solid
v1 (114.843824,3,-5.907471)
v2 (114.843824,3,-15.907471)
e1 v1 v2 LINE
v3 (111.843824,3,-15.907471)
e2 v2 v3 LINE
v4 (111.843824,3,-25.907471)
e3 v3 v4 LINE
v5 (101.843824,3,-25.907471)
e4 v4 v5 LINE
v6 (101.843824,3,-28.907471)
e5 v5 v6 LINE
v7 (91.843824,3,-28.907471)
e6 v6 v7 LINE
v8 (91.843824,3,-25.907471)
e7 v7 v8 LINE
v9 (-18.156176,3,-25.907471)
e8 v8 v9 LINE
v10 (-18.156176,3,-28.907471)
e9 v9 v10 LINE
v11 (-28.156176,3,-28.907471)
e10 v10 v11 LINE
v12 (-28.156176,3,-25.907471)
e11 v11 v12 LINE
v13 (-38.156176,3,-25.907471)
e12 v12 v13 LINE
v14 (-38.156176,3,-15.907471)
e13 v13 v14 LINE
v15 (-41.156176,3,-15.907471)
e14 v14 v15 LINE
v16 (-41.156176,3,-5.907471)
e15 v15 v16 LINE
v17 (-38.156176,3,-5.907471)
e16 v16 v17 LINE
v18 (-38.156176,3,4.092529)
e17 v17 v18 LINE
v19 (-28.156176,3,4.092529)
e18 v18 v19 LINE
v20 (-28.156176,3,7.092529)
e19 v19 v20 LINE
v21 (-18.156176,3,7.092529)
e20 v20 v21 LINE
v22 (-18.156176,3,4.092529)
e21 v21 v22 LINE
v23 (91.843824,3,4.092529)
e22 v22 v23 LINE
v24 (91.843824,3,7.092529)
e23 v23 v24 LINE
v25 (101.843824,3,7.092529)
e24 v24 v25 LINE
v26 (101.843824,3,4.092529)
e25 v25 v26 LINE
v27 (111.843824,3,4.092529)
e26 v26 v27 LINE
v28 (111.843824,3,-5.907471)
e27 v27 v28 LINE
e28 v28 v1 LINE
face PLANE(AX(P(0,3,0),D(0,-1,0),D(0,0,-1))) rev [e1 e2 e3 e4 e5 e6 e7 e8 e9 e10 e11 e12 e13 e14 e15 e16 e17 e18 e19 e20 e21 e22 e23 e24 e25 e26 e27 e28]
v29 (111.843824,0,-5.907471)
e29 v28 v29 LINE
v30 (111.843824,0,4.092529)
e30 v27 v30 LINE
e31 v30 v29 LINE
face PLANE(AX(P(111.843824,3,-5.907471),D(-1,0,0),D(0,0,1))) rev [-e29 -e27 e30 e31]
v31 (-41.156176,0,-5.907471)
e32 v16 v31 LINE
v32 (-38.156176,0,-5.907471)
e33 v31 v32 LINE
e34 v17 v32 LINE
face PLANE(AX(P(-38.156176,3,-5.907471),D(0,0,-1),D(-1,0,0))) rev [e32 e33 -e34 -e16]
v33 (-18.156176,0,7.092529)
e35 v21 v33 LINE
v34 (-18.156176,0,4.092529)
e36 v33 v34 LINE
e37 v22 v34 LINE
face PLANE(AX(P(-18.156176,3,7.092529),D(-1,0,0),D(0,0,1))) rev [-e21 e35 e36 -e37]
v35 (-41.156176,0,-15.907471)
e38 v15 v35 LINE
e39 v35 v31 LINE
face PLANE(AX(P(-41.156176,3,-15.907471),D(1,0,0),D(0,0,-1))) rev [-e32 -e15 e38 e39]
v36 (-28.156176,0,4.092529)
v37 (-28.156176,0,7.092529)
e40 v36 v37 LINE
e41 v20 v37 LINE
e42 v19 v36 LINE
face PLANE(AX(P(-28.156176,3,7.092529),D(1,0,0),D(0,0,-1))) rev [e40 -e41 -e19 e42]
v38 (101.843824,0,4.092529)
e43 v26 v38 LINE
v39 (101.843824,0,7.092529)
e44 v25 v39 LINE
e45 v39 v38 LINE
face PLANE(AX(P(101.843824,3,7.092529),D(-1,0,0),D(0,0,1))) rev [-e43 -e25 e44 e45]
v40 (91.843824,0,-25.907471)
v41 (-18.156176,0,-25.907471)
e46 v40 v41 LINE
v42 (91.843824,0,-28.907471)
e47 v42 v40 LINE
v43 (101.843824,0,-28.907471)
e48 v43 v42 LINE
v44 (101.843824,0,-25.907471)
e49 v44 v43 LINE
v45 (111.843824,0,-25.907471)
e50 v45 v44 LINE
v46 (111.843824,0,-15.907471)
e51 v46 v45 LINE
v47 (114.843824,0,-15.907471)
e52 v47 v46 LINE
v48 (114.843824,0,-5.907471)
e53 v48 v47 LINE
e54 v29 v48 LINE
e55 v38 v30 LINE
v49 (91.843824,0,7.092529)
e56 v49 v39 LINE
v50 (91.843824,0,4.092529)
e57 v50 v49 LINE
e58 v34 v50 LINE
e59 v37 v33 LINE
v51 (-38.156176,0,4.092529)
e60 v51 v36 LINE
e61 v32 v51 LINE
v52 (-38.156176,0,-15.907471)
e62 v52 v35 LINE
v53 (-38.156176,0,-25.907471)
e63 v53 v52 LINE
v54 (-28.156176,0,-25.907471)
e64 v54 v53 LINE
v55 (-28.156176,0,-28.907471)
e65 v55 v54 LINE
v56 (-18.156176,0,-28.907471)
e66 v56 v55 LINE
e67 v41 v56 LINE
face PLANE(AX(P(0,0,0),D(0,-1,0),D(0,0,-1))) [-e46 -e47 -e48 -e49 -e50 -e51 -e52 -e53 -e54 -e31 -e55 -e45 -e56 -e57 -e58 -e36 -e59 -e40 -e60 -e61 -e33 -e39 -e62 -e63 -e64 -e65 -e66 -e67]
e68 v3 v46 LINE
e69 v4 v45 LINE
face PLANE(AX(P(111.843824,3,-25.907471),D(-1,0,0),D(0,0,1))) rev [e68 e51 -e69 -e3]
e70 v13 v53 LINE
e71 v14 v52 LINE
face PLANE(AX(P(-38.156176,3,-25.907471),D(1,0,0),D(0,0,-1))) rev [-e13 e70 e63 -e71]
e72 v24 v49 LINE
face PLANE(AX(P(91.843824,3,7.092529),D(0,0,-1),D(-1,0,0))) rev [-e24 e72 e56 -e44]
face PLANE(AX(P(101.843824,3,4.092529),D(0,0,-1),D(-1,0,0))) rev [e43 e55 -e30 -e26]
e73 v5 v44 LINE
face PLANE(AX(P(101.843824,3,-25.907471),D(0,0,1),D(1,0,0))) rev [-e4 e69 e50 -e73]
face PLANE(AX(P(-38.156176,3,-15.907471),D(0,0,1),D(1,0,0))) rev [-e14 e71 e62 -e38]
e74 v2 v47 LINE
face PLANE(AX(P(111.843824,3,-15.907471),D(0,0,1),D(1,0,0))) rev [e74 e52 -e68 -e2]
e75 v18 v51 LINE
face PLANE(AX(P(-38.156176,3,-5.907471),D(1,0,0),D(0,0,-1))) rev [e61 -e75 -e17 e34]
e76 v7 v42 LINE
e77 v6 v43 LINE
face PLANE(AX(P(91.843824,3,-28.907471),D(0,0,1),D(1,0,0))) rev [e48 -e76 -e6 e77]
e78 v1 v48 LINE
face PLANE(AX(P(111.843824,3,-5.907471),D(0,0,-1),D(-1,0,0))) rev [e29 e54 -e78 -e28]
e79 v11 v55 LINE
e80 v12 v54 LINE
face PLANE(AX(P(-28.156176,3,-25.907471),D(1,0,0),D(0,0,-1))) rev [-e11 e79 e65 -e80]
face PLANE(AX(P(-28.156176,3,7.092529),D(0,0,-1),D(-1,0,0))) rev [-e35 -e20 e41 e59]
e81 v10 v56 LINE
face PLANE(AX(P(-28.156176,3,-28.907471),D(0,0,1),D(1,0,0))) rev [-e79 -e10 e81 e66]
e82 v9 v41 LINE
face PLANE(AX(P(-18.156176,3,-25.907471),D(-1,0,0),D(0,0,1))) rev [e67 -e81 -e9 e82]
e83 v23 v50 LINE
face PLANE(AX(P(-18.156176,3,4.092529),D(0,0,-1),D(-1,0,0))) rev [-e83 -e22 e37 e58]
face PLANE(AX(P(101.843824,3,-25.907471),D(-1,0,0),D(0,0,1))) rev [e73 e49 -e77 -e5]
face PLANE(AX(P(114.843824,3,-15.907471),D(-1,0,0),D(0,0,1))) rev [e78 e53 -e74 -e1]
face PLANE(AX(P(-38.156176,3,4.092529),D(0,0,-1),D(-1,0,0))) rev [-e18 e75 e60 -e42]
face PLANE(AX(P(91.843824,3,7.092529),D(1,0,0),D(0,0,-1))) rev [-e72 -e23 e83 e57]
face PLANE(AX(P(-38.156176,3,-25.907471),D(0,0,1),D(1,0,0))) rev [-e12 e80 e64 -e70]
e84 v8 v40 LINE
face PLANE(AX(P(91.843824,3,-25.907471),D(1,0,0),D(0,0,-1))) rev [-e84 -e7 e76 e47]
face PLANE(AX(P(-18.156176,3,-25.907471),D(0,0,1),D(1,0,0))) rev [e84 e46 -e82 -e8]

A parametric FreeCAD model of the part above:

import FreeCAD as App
import Part
import Sketcher

V = App.Vector
Q = App.Units.Quantity

doc = App.newDocument("Part")
body = doc.addObject("PartDesign::Body", "Body")

# Sketch on XZ plane
sketch1 = doc.addObject("Sketcher::SketchObject", "Sketch")
body.addObject(sketch1)
sketch1.AttachmentSupport = (doc.XZ_Plane, [""])
sketch1.MapMode = "FlatFace"
sketch1.addGeometry(Part.LineSegment(V(91.8, -28.9, 0), V(91.8, -25.9, 0)), False)
sketch1.addGeometry(Part.LineSegment(V(91.8, -25.9, 0), V(-18.2, -25.9, 0)), False)
sketch1.addGeometry(Part.LineSegment(V(-18.2, -25.9, 0), V(-18.2, -28.9, 0)), False)
sketch1.addGeometry(Part.LineSegment(V(-18.2, -28.9, 0), V(-28.2, -28.9, 0)), False)
sketch1.addGeometry(Part.LineSegment(V(-28.2, -28.9, 0), V(-28.2, -25.9, 0)), False)
sketch1.addGeometry(Part.LineSegment(V(-28.2, -25.9, 0), V(-38.2, -25.9, 0)), False)
sketch1.addGeometry(Part.LineSegment(V(-38.2, -25.9, 0), V(-38.2, -15.9, 0)), False)
sketch1.addGeometry(Part.LineSegment(V(-38.2, -15.9, 0), V(-41.2, -15.9, 0)), False)
sketch1.addGeometry(Part.LineSegment(V(-41.2, -15.9, 0), V(-41.2, -5.9, 0)), False)
sketch1.addGeometry(Part.LineSegment(V(-41.2, -5.9, 0), V(-38.2, -5.9, 0)), False)
sketch1.addGeometry(Part.LineSegment(V(-38.2, -5.9, 0), V(-38.2, 4.1, 0)), False)
sketch1.addGeometry(Part.LineSegment(V(-38.2, 4.1, 0), V(-28.2, 4.1, 0)), False)
sketch1.addGeometry(Part.LineSegment(V(-28.2, 4.1, 0), V(-28.2, 7.1, 0)), False)
sketch1.addGeometry(Part.LineSegment(V(-28.2, 7.1, 0), V(-18.2, 7.1, 0)), False)
sketch1.addGeometry(Part.LineSegment(V(-18.2, 7.1, 0), V(-18.2, 4.1, 0)), False)
sketch1.addGeometry(Part.LineSegment(V(-18.2, 4.1, 0), V(91.8, 4.1, 0)), False)
sketch1.addGeometry(Part.LineSegment(V(91.8, 4.1, 0), V(91.8, 7.1, 0)), False)
sketch1.addGeometry(Part.LineSegment(V(91.8, 7.1, 0), V(101.8, 7.1, 0)), False)
sketch1.addGeometry(Part.LineSegment(V(101.8, 7.1, 0), V(101.8, 4.1, 0)), False)
sketch1.addGeometry(Part.LineSegment(V(101.8, 4.1, 0), V(111.8, 4.1, 0)), False)
sketch1.addGeometry(Part.LineSegment(V(111.8, 4.1, 0), V(111.8, -5.9, 0)), False)
sketch1.addGeometry(Part.LineSegment(V(111.8, -5.9, 0), V(114.8, -5.9, 0)), False)
sketch1.addGeometry(Part.LineSegment(V(114.8, -5.9, 0), V(114.8, -15.9, 0)), False)
sketch1.addGeometry(Part.LineSegment(V(114.8, -15.9, 0), V(111.8, -15.9, 0)), False)
sketch1.addGeometry(Part.LineSegment(V(111.8, -15.9, 0), V(111.8, -25.9, 0)), False)
sketch1.addGeometry(Part.LineSegment(V(111.8, -25.9, 0), V(101.8, -25.9, 0)), False)
sketch1.addGeometry(Part.LineSegment(V(101.8, -25.9, 0), V(101.8, -28.9, 0)), False)
sketch1.addGeometry(Part.LineSegment(V(101.8, -28.9, 0), V(91.8, -28.9, 0)), False)
sketch1.addConstraint(Sketcher.Constraint("Coincident", 0, 2, 1, 1))
sketch1.addConstraint(Sketcher.Constraint("Coincident", 1, 2, 2, 1))
sketch1.addConstraint(Sketcher.Constraint("Coincident", 2, 2, 3, 1))
sketch1.addConstraint(Sketcher.Constraint("Coincident", 3, 2, 4, 1))
sketch1.addConstraint(Sketcher.Constraint("Coincident", 4, 2, 5, 1))
sketch1.addConstraint(Sketcher.Constraint("Coincident", 5, 2, 6, 1))
sketch1.addConstraint(Sketcher.Constraint("Coincident", 6, 2, 7, 1))
sketch1.addConstraint(Sketcher.Constraint("Coincident", 7, 2, 8, 1))
sketch1.addConstraint(Sketcher.Constraint("Coincident", 8, 2, 9, 1))
sketch1.addConstraint(Sketcher.Constraint("Coincident", 9, 2, 10, 1))
sketch1.addConstraint(Sketcher.Constraint("Coincident", 10, 2, 11, 1))
sketch1.addConstraint(Sketcher.Constraint("Coincident", 11, 2, 12, 1))
sketch1.addConstraint(Sketcher.Constraint("Coincident", 12, 2, 13, 1))
sketch1.addConstraint(Sketcher.Constraint("Coincident", 13, 2, 14, 1))
sketch1.addConstraint(Sketcher.Constraint("Coincident", 14, 2, 15, 1))
sketch1.addConstraint(Sketcher.Constraint("Coincident", 15, 2, 16, 1))
sketch1.addConstraint(Sketcher.Constraint("Coincident", 16, 2, 17, 1))
sketch1.addConstraint(Sketcher.Constraint("Coincident", 17, 2, 18, 1))
sketch1.addConstraint(Sketcher.Constraint("Coincident", 18, 2, 19, 1))
sketch1.addConstraint(Sketcher.Constraint("Coincident", 19, 2, 20, 1))
sketch1.addConstraint(Sketcher.Constraint("Coincident", 20, 2, 21, 1))
sketch1.addConstraint(Sketcher.Constraint("Coincident", 21, 2, 22, 1))
sketch1.addConstraint(Sketcher.Constraint("Coincident", 22, 2, 23, 1))
sketch1.addConstraint(Sketcher.Constraint("Coincident", 23, 2, 24, 1))
sketch1.addConstraint(Sketcher.Constraint("Coincident", 24, 2, 25, 1))
sketch1.addConstraint(Sketcher.Constraint("Coincident", 25, 2, 26, 1))
sketch1.addConstraint(Sketcher.Constraint("Coincident", 26, 2, 27, 1))
sketch1.addConstraint(Sketcher.Constraint("Coincident", 27, 2, 0, 1))
sketch1.addConstraint(Sketcher.Constraint("Vertical", 0))
sketch1.addConstraint(Sketcher.Constraint("Horizontal", 1))
sketch1.addConstraint(Sketcher.Constraint("Vertical", 2))
sketch1.addConstraint(Sketcher.Constraint("Horizontal", 3))
sketch1.addConstraint(Sketcher.Constraint("Vertical", 4))
sketch1.addConstraint(Sketcher.Constraint("Horizontal", 5))
sketch1.addConstraint(Sketcher.Constraint("Vertical", 6))
sketch1.addConstraint(Sketcher.Constraint("Horizontal", 7))
sketch1.addConstraint(Sketcher.Constraint("Vertical", 8))
sketch1.addConstraint(Sketcher.Constraint("Horizontal", 9))
sketch1.addConstraint(Sketcher.Constraint("Vertical", 10))
sketch1.addConstraint(Sketcher.Constraint("Horizontal", 11))
sketch1.addConstraint(Sketcher.Constraint("Vertical", 12))
sketch1.addConstraint(Sketcher.Constraint("Horizontal", 13))
sketch1.addConstraint(Sketcher.Constraint("Vertical", 14))
sketch1.addConstraint(Sketcher.Constraint("Horizontal", 15))
sketch1.addConstraint(Sketcher.Constraint("Vertical", 16))
sketch1.addConstraint(Sketcher.Constraint("Horizontal", 17))
sketch1.addConstraint(Sketcher.Constraint("Vertical", 18))
sketch1.addConstraint(Sketcher.Constraint("Horizontal", 19))
sketch1.addConstraint(Sketcher.Constraint("Vertical", 20))
sketch1.addConstraint(Sketcher.Constraint("Horizontal", 21))
sketch1.addConstraint(Sketcher.Constraint("Vertical", 22))
sketch1.addConstraint(Sketcher.Constraint("Horizontal", 23))
sketch1.addConstraint(Sketcher.Constraint("Vertical", 24))
sketch1.addConstraint(Sketcher.Constraint("Horizontal", 25))
sketch1.addConstraint(Sketcher.Constraint("Vertical", 26))
sketch1.addConstraint(Sketcher.Constraint("Horizontal", 27))
sketch1.addConstraint(Sketcher.Constraint("Horizontal", 1, 2, 4, 2))
sketch1.addConstraint(Sketcher.Constraint("Horizontal", 11, 2, 14, 2))
sketch1.addConstraint(Sketcher.Constraint("Horizontal", 13, 2, 16, 2))
sketch1.addConstraint(Sketcher.Constraint("Horizontal", 15, 2, 18, 2))
sketch1.addConstraint(Sketcher.Constraint("Horizontal", 9, 2, 20, 2))
sketch1.addConstraint(Sketcher.Constraint("Horizontal", 7, 2, 22, 2))
sketch1.addConstraint(Sketcher.Constraint("Horizontal", 5, 2, 24, 2))
sketch1.addConstraint(Sketcher.Constraint("Horizontal", 3, 2, 26, 2))
sketch1.addConstraint(Sketcher.Constraint("Vertical", 6, 2, 9, 2))
sketch1.addConstraint(Sketcher.Constraint("Vertical", 4, 2, 11, 2))
sketch1.addConstraint(Sketcher.Constraint("Vertical", 2, 2, 13, 2))
sketch1.addConstraint(Sketcher.Constraint("Vertical", 0, 2, 15, 2))
sketch1.addConstraint(Sketcher.Constraint("Vertical", 20, 2, 23, 2))
sketch1.addConstraint(Sketcher.Constraint("Vertical", 18, 2, 25, 2))
sketch1.addConstraint(Sketcher.Constraint("Equal", 3, 5))
sketch1.addConstraint(Sketcher.Constraint("Equal", 13, 17))
sketch1.addConstraint(Sketcher.Constraint("Equal", 17, 19))
sketch1.addConstraint(Sketcher.Constraint("Equal", 9, 21))
sketch1.addConstraint(Sketcher.Constraint("Equal", 23, 0))
sketch1.addConstraint(Sketcher.Constraint("Equal", 27, 6))
sketch1.addConstraint(Sketcher.Constraint("Equal", 6, 8))
sketch1.addConstraint(Sketcher.Constraint("Equal", 8, 10))
sketch1.addConstraint(Sketcher.Constraint("Equal", 4, 12))
sketch1.addConstraint(Sketcher.Constraint("DistanceX", 1, 2, 1, 1, Q("110 mm")))
sketch1.addConstraint(Sketcher.Constraint("DistanceX", 3, 2, 3, 1, Q("10 mm")))
sketch1.addConstraint(Sketcher.Constraint("DistanceX", 7, 2, 7, 1, Q("3 mm")))
sketch1.addConstraint(Sketcher.Constraint("DistanceY", 0, 2, -1, 1, Q("25.907471 mm")))
sketch1.addConstraint(Sketcher.Constraint("DistanceX", -1, 1, 0, 2, Q("91.843824 mm")))
pad1 = doc.addObject("PartDesign::Pad", "Pad")
body.addObject(pad1)
pad1.Profile = sketch1
pad1.Length = 3
pad1.Reversed = True

doc.recompute()
